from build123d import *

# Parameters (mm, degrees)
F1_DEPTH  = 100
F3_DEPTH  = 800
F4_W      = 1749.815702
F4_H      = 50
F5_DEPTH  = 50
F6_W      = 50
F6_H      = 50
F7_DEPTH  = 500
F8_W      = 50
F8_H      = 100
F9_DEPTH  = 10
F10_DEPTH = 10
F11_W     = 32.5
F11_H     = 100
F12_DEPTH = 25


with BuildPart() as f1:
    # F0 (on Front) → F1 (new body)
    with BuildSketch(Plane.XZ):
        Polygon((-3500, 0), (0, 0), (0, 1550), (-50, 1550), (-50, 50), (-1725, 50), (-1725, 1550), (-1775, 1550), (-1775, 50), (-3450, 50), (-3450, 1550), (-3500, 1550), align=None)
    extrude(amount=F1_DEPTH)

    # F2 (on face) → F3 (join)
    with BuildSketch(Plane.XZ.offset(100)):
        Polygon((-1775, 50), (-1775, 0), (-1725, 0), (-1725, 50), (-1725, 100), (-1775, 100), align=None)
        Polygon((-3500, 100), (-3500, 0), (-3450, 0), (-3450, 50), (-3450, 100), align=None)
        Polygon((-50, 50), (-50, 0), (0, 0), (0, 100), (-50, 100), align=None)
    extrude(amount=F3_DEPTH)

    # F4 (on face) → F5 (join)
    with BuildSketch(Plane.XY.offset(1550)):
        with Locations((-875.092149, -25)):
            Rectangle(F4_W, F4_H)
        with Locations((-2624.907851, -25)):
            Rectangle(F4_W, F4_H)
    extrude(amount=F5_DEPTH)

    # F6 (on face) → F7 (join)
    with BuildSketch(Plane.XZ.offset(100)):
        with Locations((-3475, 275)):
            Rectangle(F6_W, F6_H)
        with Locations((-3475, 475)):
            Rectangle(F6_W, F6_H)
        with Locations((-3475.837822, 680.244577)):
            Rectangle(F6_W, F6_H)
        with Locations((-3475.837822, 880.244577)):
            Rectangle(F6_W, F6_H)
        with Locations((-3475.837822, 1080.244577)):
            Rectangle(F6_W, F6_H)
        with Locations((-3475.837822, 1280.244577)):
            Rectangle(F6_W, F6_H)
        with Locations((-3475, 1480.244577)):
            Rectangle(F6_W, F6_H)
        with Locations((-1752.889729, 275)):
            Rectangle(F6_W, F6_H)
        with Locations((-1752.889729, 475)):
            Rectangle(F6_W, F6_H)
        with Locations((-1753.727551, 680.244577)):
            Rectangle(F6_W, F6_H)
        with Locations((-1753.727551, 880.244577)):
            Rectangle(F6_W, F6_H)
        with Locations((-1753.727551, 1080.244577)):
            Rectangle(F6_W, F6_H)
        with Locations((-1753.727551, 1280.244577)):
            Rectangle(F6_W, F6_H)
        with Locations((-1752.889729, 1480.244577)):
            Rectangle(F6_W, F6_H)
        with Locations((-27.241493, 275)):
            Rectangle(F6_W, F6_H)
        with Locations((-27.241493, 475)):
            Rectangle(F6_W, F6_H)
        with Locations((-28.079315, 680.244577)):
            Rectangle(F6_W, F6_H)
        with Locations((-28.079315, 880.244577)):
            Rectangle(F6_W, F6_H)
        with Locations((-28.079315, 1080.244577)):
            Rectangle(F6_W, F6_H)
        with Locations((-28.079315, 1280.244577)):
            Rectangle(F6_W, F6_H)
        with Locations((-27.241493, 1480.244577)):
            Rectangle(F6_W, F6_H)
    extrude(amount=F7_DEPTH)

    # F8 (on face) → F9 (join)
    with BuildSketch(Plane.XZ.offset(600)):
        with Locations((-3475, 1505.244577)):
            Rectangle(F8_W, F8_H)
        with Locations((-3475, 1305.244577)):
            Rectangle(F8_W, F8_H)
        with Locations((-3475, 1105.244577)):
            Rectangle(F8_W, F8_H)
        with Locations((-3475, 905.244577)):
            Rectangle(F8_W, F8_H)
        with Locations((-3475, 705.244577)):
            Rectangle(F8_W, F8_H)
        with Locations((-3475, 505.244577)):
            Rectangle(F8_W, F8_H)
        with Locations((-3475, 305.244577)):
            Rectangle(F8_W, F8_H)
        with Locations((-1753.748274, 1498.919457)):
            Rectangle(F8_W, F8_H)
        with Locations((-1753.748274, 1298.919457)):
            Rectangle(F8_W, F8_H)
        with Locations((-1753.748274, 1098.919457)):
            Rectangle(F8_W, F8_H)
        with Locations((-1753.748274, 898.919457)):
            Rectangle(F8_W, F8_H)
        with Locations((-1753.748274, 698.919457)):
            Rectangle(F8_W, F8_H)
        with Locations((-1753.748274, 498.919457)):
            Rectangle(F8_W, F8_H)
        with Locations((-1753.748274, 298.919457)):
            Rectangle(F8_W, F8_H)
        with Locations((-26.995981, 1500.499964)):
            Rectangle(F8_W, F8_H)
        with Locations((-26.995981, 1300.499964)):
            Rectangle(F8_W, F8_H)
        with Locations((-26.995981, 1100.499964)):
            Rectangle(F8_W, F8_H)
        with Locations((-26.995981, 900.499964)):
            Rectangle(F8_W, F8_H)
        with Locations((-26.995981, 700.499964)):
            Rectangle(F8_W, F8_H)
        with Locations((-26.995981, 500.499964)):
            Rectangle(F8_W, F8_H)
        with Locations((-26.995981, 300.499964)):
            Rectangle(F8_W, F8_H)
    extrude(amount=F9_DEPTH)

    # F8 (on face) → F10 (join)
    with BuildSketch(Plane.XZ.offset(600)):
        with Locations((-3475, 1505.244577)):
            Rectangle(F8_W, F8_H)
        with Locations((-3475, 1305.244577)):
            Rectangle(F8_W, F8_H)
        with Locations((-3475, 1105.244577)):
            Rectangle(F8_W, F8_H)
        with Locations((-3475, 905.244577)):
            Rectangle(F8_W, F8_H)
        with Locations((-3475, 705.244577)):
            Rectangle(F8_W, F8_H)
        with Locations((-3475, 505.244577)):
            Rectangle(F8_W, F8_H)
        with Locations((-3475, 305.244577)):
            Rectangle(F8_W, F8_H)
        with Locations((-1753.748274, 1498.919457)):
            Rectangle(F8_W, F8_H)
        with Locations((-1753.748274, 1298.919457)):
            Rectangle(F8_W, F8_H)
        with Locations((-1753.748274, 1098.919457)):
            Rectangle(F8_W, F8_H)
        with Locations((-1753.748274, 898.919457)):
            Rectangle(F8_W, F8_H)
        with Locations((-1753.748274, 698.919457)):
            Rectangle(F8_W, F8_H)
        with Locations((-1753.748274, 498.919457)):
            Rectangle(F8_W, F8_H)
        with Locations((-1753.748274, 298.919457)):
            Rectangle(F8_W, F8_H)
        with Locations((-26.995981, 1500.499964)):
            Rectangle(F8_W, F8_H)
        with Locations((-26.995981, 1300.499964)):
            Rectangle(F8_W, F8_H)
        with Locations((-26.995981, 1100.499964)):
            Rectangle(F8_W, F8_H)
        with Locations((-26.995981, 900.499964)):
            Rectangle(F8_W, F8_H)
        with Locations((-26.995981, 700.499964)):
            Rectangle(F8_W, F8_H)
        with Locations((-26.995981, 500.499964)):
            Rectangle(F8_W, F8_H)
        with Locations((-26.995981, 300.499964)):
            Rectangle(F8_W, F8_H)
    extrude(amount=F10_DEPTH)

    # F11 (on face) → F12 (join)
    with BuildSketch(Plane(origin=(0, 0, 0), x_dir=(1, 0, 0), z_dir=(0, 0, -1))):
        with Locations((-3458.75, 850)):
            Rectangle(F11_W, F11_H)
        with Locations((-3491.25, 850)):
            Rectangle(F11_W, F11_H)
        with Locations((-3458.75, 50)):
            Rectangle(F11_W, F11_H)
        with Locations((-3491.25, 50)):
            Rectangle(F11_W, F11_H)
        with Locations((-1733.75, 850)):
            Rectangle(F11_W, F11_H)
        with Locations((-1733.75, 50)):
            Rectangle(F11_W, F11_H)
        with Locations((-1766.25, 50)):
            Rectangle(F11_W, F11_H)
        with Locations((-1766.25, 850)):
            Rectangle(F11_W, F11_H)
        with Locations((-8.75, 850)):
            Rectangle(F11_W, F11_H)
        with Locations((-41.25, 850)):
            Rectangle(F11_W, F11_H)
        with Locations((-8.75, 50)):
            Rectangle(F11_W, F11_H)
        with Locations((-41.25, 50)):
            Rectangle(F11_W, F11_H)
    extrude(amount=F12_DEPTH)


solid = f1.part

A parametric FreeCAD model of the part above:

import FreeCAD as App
import Part
import Sketcher

V = App.Vector


def add_polygon(sketch, points):
    """Adds a closed chain of lines whose ends are joined by coincident constraints."""
    first, n = sketch.GeometryCount, len(points)
    for a, b in zip(points, points[1:] + points[:1]):
        sketch.addGeometry(Part.LineSegment(App.Vector(*a, 0), App.Vector(*b, 0)), False)
    for i in range(n):
        sketch.addConstraint(Sketcher.Constraint("Coincident", first + i, 2, first + (i + 1) % n, 1))

doc = App.newDocument("Part")
body = doc.addObject("PartDesign::Body", "Body")

sketch1 = doc.addObject("Sketcher::SketchObject", "Sketch")
body.addObject(sketch1)
sketch1.AttachmentSupport = (doc.XZ_Plane, [""])
sketch1.MapMode = "FlatFace"
add_polygon(sketch1, [(-3500, 0), (0, 0), (0, 1550), (-50, 1550), (-50, 50), (-1725, 50), (-1725, 1550), (-1775, 1550), (-1775, 50), (-3450, 50), (-3450, 1550), (-3500, 1550)])
sketch1.addConstraint(Sketcher.Constraint("Horizontal", 0))
sketch1.addConstraint(Sketcher.Constraint("Vertical", 1))
sketch1.addConstraint(Sketcher.Constraint("Horizontal", 2))
sketch1.addConstraint(Sketcher.Constraint("Vertical", 3))
sketch1.addConstraint(Sketcher.Constraint("Horizontal", 4))
sketch1.addConstraint(Sketcher.Constraint("Vertical", 5))
sketch1.addConstraint(Sketcher.Constraint("Horizontal", 6))
sketch1.addConstraint(Sketcher.Constraint("Vertical", 7))
sketch1.addConstraint(Sketcher.Constraint("Horizontal", 8))
sketch1.addConstraint(Sketcher.Constraint("Vertical", 9))
sketch1.addConstraint(Sketcher.Constraint("Horizontal", 10))
sketch1.addConstraint(Sketcher.Constraint("Vertical", 11))
sketch1.addConstraint(Sketcher.Constraint("Coincident", 0, 2, -1, 1))
sketch1.addConstraint(Sketcher.Constraint("Horizontal", 2, 2, 5, 2))
sketch1.addConstraint(Sketcher.Constraint("Horizontal", 4, 2, 7, 2))
sketch1.addConstraint(Sketcher.Constraint("Horizontal", 6, 2, 9, 2))
sketch1.addConstraint(Sketcher.Constraint("Equal", 2, 6))
sketch1.addConstraint(Sketcher.Constraint("Equal", 4, 8))
sketch1.addConstraint(Sketcher.Constraint("Equal", 6, 10))
sketch1.addConstraint(Sketcher.Constraint("DistanceX", 0, 1, 0, 2, 3500.0))
sketch1.addConstraint(Sketcher.Constraint("DistanceX", 2, 2, 2, 1, 50.0))
sketch1.addConstraint(Sketcher.Constraint("DistanceY", 1, 1, 1, 2, 1550.0))
sketch1.addConstraint(Sketcher.Constraint("DistanceY", 3, 2, 3, 1, 1500.0))
pad1 = doc.addObject("PartDesign::Pad", "Pad")
body.addObject(pad1)
pad1.Profile = sketch1
pad1.Length = 100

sketch2 = doc.addObject("Sketcher::SketchObject", "Sketch001")
body.addObject(sketch2)
sketch2.AttachmentSupport = (doc.XZ_Plane, [""])
sketch2.MapMode = "FlatFace"
sketch2.AttachmentOffset = App.Placement(V(0, 0, 100), App.Rotation())
add_polygon(sketch2, [(-1775, 0), (-1725, 0), (-1725, 100), (-1775, 100)])
add_polygon(sketch2, [(-3500, 100), (-3500, 0), (-3450, 0), (-3450, 100)])
add_polygon(sketch2, [(-50, 0), (0, 0), (0, 100), (-50, 100)])
sketch2.addConstraint(Sketcher.Constraint("Horizontal", 0))
sketch2.addConstraint(Sketcher.Constraint("Vertical", 1))
sketch2.addConstraint(Sketcher.Constraint("Horizontal", 2))
sketch2.addConstraint(Sketcher.Constraint("Vertical", 3))
sketch2.addConstraint(Sketcher.Constraint("Vertical", 4))
sketch2.addConstraint(Sketcher.Constraint("Horizontal", 5))
sketch2.addConstraint(Sketcher.Constraint("Vertical", 6))
sketch2.addConstraint(Sketcher.Constraint("Horizontal", 7))
sketch2.addConstraint(Sketcher.Constraint("Horizontal", 8))
sketch2.addConstraint(Sketcher.Constraint("Vertical", 9))
sketch2.addConstraint(Sketcher.Constraint("Horizontal", 10))
sketch2.addConstraint(Sketcher.Constraint("Vertical", 11))
sketch2.addConstraint(Sketcher.Constraint("Coincident", 8, 2, -1, 1))
sketch2.addConstraint(Sketcher.Constraint("PointOnObject", 0, 2, -1))
sketch2.addConstraint(Sketcher.Constraint("PointOnObject", 4, 2, -1))
sketch2.addConstraint(Sketcher.Constraint("Horizontal", 2, 2, 6, 2))
sketch2.addConstraint(Sketcher.Constraint("Horizontal", 7, 2, 9, 2))
sketch2.addConstraint(Sketcher.Constraint("Equal", 2, 5))
sketch2.addConstraint(Sketcher.Constraint("Equal", 7, 8))
sketch2.addConstraint(Sketcher.Constraint("DistanceX", 0, 1, 0, 2, 50.0))
sketch2.addConstraint(Sketcher.Constraint("DistanceY", 1, 1, 1, 2, 100.0))
sketch2.addConstraint(Sketcher.Constraint("DistanceX", 0, 2, -1, 1, 1725.0))
sketch2.addConstraint(Sketcher.Constraint("DistanceX", 4, 2, -1, 1, 3500.0))
pad2 = doc.addObject("PartDesign::Pad", "Pad001")
body.addObject(pad2)
pad2.Profile = sketch2
pad2.Length = 800

sketch3 = doc.addObject("Sketcher::SketchObject", "Sketch002")
body.addObject(sketch3)
sketch3.AttachmentSupport = (doc.XY_Plane, [""])
sketch3.MapMode = "FlatFace"
sketch3.AttachmentOffset = App.Placement(V(0, 0, 1550), App.Rotation())
add_polygon(sketch3, [(0, -50), (0, 0), (-3500, 0), (-3500, -50)])
sketch3.addConstraint(Sketcher.Constraint("Vertical", 0))
sketch3.addConstraint(Sketcher.Constraint("Horizontal", 1))
sketch3.addConstraint(Sketcher.Constraint("Vertical", 2))
sketch3.addConstraint(Sketcher.Constraint("Horizontal", 3))
sketch3.addConstraint(Sketcher.Constraint("PointOnObject", 0, 2, -1))
sketch3.addConstraint(Sketcher.Constraint("DistanceY", 0, 1, 0, 2, 50.0))
sketch3.addConstraint(Sketcher.Constraint("DistanceX", 1, 2, -1, 1, 3499.815702))
sketch3.addConstraint(Sketcher.Constraint("DistanceX", 1, 2, 1, 1, 3499.631404))
pad3 = doc.addObject("PartDesign::Pad", "Pad002")
body.addObject(pad3)
pad3.Profile = sketch3
pad3.Length = 50

sketch4 = doc.addObject("Sketcher::SketchObject", "Sketch003")
body.addObject(sketch4)
sketch4.AttachmentSupport = (doc.XZ_Plane, [""])
sketch4.MapMode = "FlatFace"
sketch4.AttachmentOffset = App.Placement(V(0, 0, 100), App.Rotation())
add_polygon(sketch4, [(-3500, 300), (-3500, 250), (-3450, 250), (-3450, 300)])
add_polygon(sketch4, [(-3500, 500), (-3500, 450), (-3450, 450), (-3450, 500)])
add_polygon(sketch4, [(-3501, 705), (-3501, 655), (-3451, 655), (-3451, 705)])
add_polygon(sketch4, [(-3501, 905), (-3501, 855), (-3451, 855), (-3451, 905)])
add_polygon(sketch4, [(-3501, 1105), (-3501, 1055), (-3451, 1055), (-3451, 1105)])
add_polygon(sketch4, [(-3501, 1305), (-3501, 1255), (-3451, 1255), (-3451, 1305)])
add_polygon(sketch4, [(-3500, 1505), (-3500, 1455), (-3450, 1455), (-3450, 1505)])
add_polygon(sketch4, [(-1778, 300), (-1778, 250), (-1728, 250), (-1728, 300)])
add_polygon(sketch4, [(-1778, 500), (-1778, 450), (-1728, 450), (-1728, 500)])
add_polygon(sketch4, [(-1779, 705), (-1779, 655), (-1729, 655), (-1729, 705)])
add_polygon(sketch4, [(-1779, 905), (-1779, 855), (-1729, 855), (-1729, 905)])
add_polygon(sketch4, [(-1779, 1105), (-1779, 1055), (-1729, 1055), (-1729, 1105)])
add_polygon(sketch4, [(-1779, 1305), (-1779, 1255), (-1729, 1255), (-1729, 1305)])
add_polygon(sketch4, [(-1778, 1505), (-1778, 1455), (-1728, 1455), (-1728, 1505)])
add_polygon(sketch4, [(-52, 300), (-52, 250), (-2, 250), (-2, 300)])
add_polygon(sketch4, [(-52, 500), (-52, 450), (-2, 450), (-2, 500)])
add_polygon(sketch4, [(-53, 705), (-53, 655), (-3, 655), (-3, 705)])
add_polygon(sketch4, [(-53, 905), (-53, 855), (-3, 855), (-3, 905)])
add_polygon(sketch4, [(-53, 1105), (-53, 1055), (-3, 1055), (-3, 1105)])
add_polygon(sketch4, [(-53, 1305), (-53, 1255), (-3, 1255), (-3, 1305)])
add_polygon(sketch4, [(-52, 1505), (-52, 1455), (-2, 1455), (-2, 1505)])
sketch4.addConstraint(Sketcher.Constraint("Vertical", 0))
sketch4.addConstraint(Sketcher.Constraint("Horizontal", 1))
sketch4.addConstraint(Sketcher.Constraint("Vertical", 2))
sketch4.addConstraint(Sketcher.Constraint("Horizontal", 3))
sketch4.addConstraint(Sketcher.Constraint("Vertical", 4))
sketch4.addConstraint(Sketcher.Constraint("Horizontal", 5))
sketch4.addConstraint(Sketcher.Constraint("Vertical", 6))
sketch4.addConstraint(Sketcher.Constraint("Horizontal", 7))
sketch4.addConstraint(Sketcher.Constraint("Vertical", 8))
sketch4.addConstraint(Sketcher.Constraint("Horizontal", 9))
sketch4.addConstraint(Sketcher.Constraint("Vertical", 10))
sketch4.addConstraint(Sketcher.Constraint("Horizontal", 11))
sketch4.addConstraint(Sketcher.Constraint("Vertical", 12))
sketch4.addConstraint(Sketcher.Constraint("Horizontal", 13))
sketch4.addConstraint(Sketcher.Constraint("Vertical", 14))
sketch4.addConstraint(Sketcher.Constraint("Horizontal", 15))
sketch4.addConstraint(Sketcher.Constraint("Vertical", 16))
sketch4.addConstraint(Sketcher.Constraint("Horizontal", 17))
sketch4.addConstraint(Sketcher.Constraint("Vertical", 18))
sketch4.addConstraint(Sketcher.Constraint("Horizontal", 19))
sketch4.addConstraint(Sketcher.Constraint("Vertical", 20))
sketch4.addConstraint(Sketcher.Constraint("Horizontal", 21))
sketch4.addConstraint(Sketcher.Constraint("Vertical", 22))
sketch4.addConstraint(Sketcher.Constraint("Horizontal", 23))
sketch4.addConstraint(Sketcher.Constraint("Vertical", 24))
sketch4.addConstraint(Sketcher.Constraint("Horizontal", 25))
sketch4.addConstraint(Sketcher.Constraint("Vertical", 26))
sketch4.addConstraint(Sketcher.Constraint("Horizontal", 27))
sketch4.addConstraint(Sketcher.Constraint("Vertical", 28))
sketch4.addConstraint(Sketcher.Constraint("Horizontal", 29))
sketch4.addConstraint(Sketcher.Constraint("Vertical", 30))
sketch4.addConstraint(Sketcher.Constraint("Horizontal", 31))
sketch4.addConstraint(Sketcher.Constraint("Vertical", 32))
sketch4.addConstraint(Sketcher.Constraint("Horizontal", 33))
sketch4.addConstraint(Sketcher.Constraint("Vertical", 34))
sketch4.addConstraint(Sketcher.Constraint("Horizontal", 35))
sketch4.addConstraint(Sketcher.Constraint("Vertical", 36))
sketch4.addConstraint(Sketcher.Constraint("Horizontal", 37))
sketch4.addConstraint(Sketcher.Constraint("Vertical", 38))
sketch4.addConstraint(Sketcher.Constraint("Horizontal", 39))
sketch4.addConstraint(Sketcher.Constraint("Vertical", 40))
sketch4.addConstraint(Sketcher.Constraint("Horizontal", 41))
sketch4.addConstraint(Sketcher.Constraint("Vertical", 42))
sketch4.addConstraint(Sketcher.Constraint("Horizontal", 43))
sketch4.addConstraint(Sketcher.Constraint("Vertical", 44))
sketch4.addConstraint(Sketcher.Constraint("Horizontal", 45))
sketch4.addConstraint(Sketcher.Constraint("Vertical", 46))
sketch4.addConstraint(Sketcher.Constraint("Horizontal", 47))
sketch4.addConstraint(Sketcher.Constraint("Vertical", 48))
sketch4.addConstraint(Sketcher.Constraint("Horizontal", 49))
sketch4.addConstraint(Sketcher.Constraint("Vertical", 50))
sketch4.addConstraint(Sketcher.Constraint("Horizontal", 51))
sketch4.addConstraint(Sketcher.Constraint("Vertical", 52))
sketch4.addConstraint(Sketcher.Constraint("Horizontal", 53))
sketch4.addConstraint(Sketcher.Constraint("Vertical", 54))
sketch4.addConstraint(Sketcher.Constraint("Horizontal", 55))
sketch4.addConstraint(Sketcher.Constraint("Vertical", 56))
sketch4.addConstraint(Sketcher.Constraint("Horizontal", 57))
sketch4.addConstraint(Sketcher.Constraint("Vertical", 58))
sketch4.addConstraint(Sketcher.Constraint("Horizontal", 59))
sketch4.addConstraint(Sketcher.Constraint("Vertical", 60))
sketch4.addConstraint(Sketcher.Constraint("Horizontal", 61))
sketch4.addConstraint(Sketcher.Constraint("Vertical", 62))
sketch4.addConstraint(Sketcher.Constraint("Horizontal", 63))
sketch4.addConstraint(Sketcher.Constraint("Vertical", 64))
sketch4.addConstraint(Sketcher.Constraint("Horizontal", 65))
sketch4.addConstraint(Sketcher.Constraint("Vertical", 66))
sketch4.addConstraint(Sketcher.Constraint("Horizontal", 67))
sketch4.addConstraint(Sketcher.Constraint("Vertical", 68))
sketch4.addConstraint(Sketcher.Constraint("Horizontal", 69))
sketch4.addConstraint(Sketcher.Constraint("Vertical", 70))
sketch4.addConstraint(Sketcher.Constraint("Horizontal", 71))
sketch4.addConstraint(Sketcher.Constraint("Vertical", 72))
sketch4.addConstraint(Sketcher.Constraint("Horizontal", 73))
sketch4.addConstraint(Sketcher.Constraint("Vertical", 74))
sketch4.addConstraint(Sketcher.Constraint("Horizontal", 75))
sketch4.addConstraint(Sketcher.Constraint("Vertical", 76))
sketch4.addConstraint(Sketcher.Constraint("Horizontal", 77))
sketch4.addConstraint(Sketcher.Constraint("Vertical", 78))
sketch4.addConstraint(Sketcher.Constraint("Horizontal", 79))
sketch4.addConstraint(Sketcher.Constraint("Vertical", 80))
sketch4.addConstraint(Sketcher.Constraint("Horizontal", 81))
sketch4.addConstraint(Sketcher.Constraint("Vertical", 82))
sketch4.addConstraint(Sketcher.Constraint("Horizontal", 83))
sketch4.addConstraint(Sketcher.Constraint("Horizontal", 1, 2, 28, 2))
sketch4.addConstraint(Sketcher.Constraint("Horizontal", 3, 2, 30, 2))
sketch4.addConstraint(Sketcher.Constraint("Horizontal", 5, 2, 32, 2))
sketch4.addConstraint(Sketcher.Constraint("Horizontal", 7, 2, 34, 2))
sketch4.addConstraint(Sketcher.Constraint("Horizontal", 9, 2, 36, 2))
sketch4.addConstraint(Sketcher.Constraint("Horizontal", 11, 2, 38, 2))
sketch4.addConstraint(Sketcher.Constraint("Horizontal", 13, 2, 40, 2))
sketch4.addConstraint(Sketcher.Constraint("Horizontal", 15, 2, 42, 2))
sketch4.addConstraint(Sketcher.Constraint("Horizontal", 17, 2, 44, 2))
sketch4.addConstraint(Sketcher.Constraint("Horizontal", 19, 2, 46, 2))
sketch4.addConstraint(Sketcher.Constraint("Horizontal", 21, 2, 48, 2))
sketch4.addConstraint(Sketcher.Constraint("Horizontal", 23, 2, 50, 2))
sketch4.addConstraint(Sketcher.Constraint("Horizontal", 25, 2, 52, 2))
sketch4.addConstraint(Sketcher.Constraint("Horizontal", 27, 2, 54, 2))
sketch4.addConstraint(Sketcher.Constraint("Horizontal", 29, 2, 56, 2))
sketch4.addConstraint(Sketcher.Constraint("Horizontal", 31, 2, 58, 2))
sketch4.addConstraint(Sketcher.Constraint("Horizontal", 33, 2, 60, 2))
sketch4.addConstraint(Sketcher.Constraint("Horizontal", 35, 2, 62, 2))
sketch4.addConstraint(Sketcher.Constraint("Horizontal", 37, 2, 64, 2))
sketch4.addConstraint(Sketcher.Constraint("Horizontal", 39, 2, 66, 2))
sketch4.addConstraint(Sketcher.Constraint("Horizontal", 41, 2, 68, 2))
sketch4.addConstraint(Sketcher.Constraint("Horizontal", 43, 2, 70, 2))
sketch4.addConstraint(Sketcher.Constraint("Horizontal", 45, 2, 72, 2))
sketch4.addConstraint(Sketcher.Constraint("Horizontal", 47, 2, 74, 2))
sketch4.addConstraint(Sketcher.Constraint("Horizontal", 49, 2, 76, 2))
sketch4.addConstraint(Sketcher.Constraint("Horizontal", 51, 2, 78, 2))
sketch4.addConstraint(Sketcher.Constraint("Horizontal", 53, 2, 80, 2))
sketch4.addConstraint(Sketcher.Constraint("Horizontal", 55, 2, 82, 2))
sketch4.addConstraint(Sketcher.Constraint("Vertical", 3, 2, 4, 2))
sketch4.addConstraint(Sketcher.Constraint("Vertical", 2, 2, 5, 2))
sketch4.addConstraint(Sketcher.Constraint("Vertical", 11, 2, 12, 2))
sketch4.addConstraint(Sketcher.Constraint("Vertical", 10, 2, 13, 2))
sketch4.addConstraint(Sketcher.Constraint("Vertical", 15, 2, 16, 2))
sketch4.addConstraint(Sketcher.Constraint("Vertical", 14, 2, 17, 2))
sketch4.addConstraint(Sketcher.Constraint("Vertical", 19, 2, 20, 2))
sketch4.addConstraint(Sketcher.Constraint("Vertical", 18, 2, 21, 2))
sketch4.addConstraint(Sketcher.Constraint("Vertical", 7, 2, 24, 2))
sketch4.addConstraint(Sketcher.Constraint("Vertical", 6, 2, 25, 2))
sketch4.addConstraint(Sketcher.Constraint("Vertical", 31, 2, 32, 2))
sketch4.addConstraint(Sketcher.Constraint("Vertical", 30, 2, 33, 2))
sketch4.addConstraint(Sketcher.Constraint("Vertical", 39, 2, 40, 2))
sketch4.addConstraint(Sketcher.Constraint("Vertical", 38, 2, 41, 2))
sketch4.addConstraint(Sketcher.Constraint("Vertical", 43, 2, 44, 2))
sketch4.addConstraint(Sketcher.Constraint("Vertical", 42, 2, 45, 2))
sketch4.addConstraint(Sketcher.Constraint("Vertical", 47, 2, 48, 2))
sketch4.addConstraint(Sketcher.Constraint("Vertical", 46, 2, 49, 2))
sketch4.addConstraint(Sketcher.Constraint("Vertical", 35, 2, 52, 2))
sketch4.addConstraint(Sketcher.Constraint("Vertical", 34, 2, 53, 2))
sketch4.addConstraint(Sketcher.Constraint("Vertical", 59, 2, 60, 2))
sketch4.addConstraint(Sketcher.Constraint("Vertical", 58, 2, 61, 2))
sketch4.addConstraint(Sketcher.Constraint("Vertical", 67, 2, 68, 2))
sketch4.addConstraint(Sketcher.Constraint("Vertical", 66, 2, 69, 2))
sketch4.addConstraint(Sketcher.Constraint("Vertical", 71, 2, 72, 2))
sketch4.addConstraint(Sketcher.Constraint("Vertical", 70, 2, 73, 2))
sketch4.addConstraint(Sketcher.Constraint("Vertical", 75, 2, 76, 2))
sketch4.addConstraint(Sketcher.Constraint("Vertical", 74, 2, 77, 2))
sketch4.addConstraint(Sketcher.Constraint("Vertical", 63, 2, 80, 2))
sketch4.addConstraint(Sketcher.Constraint("Vertical", 62, 2, 81, 2))
sketch4.addConstraint(Sketcher.Constraint("Equal", 7, 9))
sketch4.addConstraint(Sketcher.Constraint("Equal", 27, 29))
sketch4.addConstraint(Sketcher.Constraint("Equal", 35, 37))
sketch4.addConstraint(Sketcher.Constraint("Equal", 55, 57))
sketch4.addConstraint(Sketcher.Constraint("Equal", 63, 65))
sketch4.addConstraint(Sketcher.Constraint("Equal", 83, 0))
sketch4.addConstraint(Sketcher.Constraint("Equal", 2, 4))
sketch4.addConstraint(Sketcher.Constraint("Equal", 6, 8))
sketch4.addConstraint(Sketcher.Constraint("Equal", 10, 12))
sketch4.addConstraint(Sketcher.Constraint("Equal", 14, 16))
sketch4.addConstraint(Sketcher.Constraint("Equal", 18, 20))
sketch4.addConstraint(Sketcher.Constraint("Equal", 22, 24))
sketch4.addConstraint(Sketcher.Constraint("DistanceX", 1, 1, 1, 2, 50.0))
sketch4.addConstraint(Sketcher.Constraint("DistanceX", 0, 2, -1, 1, 3500.0))
sketch4.addConstraint(Sketcher.Constraint("DistanceY", -1, 1, 0, 2, 250.0))
sketch4.addConstraint(Sketcher.Constraint("DistanceY", -1, 1, 4, 2, 450.0))
sketch4.addConstraint(Sketcher.Constraint("DistanceX", 8, 2, -1, 1, 3500.837822))
sketch4.addConstraint(Sketcher.Constraint("DistanceX", 28, 2, -1, 1, 1777.889729))
sketch4.addConstraint(Sketcher.Constraint("DistanceX", 36, 2, -1, 1, 1778.727551))
sketch4.addConstraint(Sketcher.Constraint("DistanceY", -1, 1, 8, 2, 655.244577))
sketch4.addConstraint(Sketcher.Constraint("DistanceY", -1, 1, 12, 2, 855.244577))
sketch4.addConstraint(Sketcher.Constraint("DistanceY", -1, 1, 16, 2, 1055.244577))
sketch4.addConstraint(Sketcher.Constraint("DistanceY", -1, 1, 20, 2, 1255.244577))
sketch4.addConstraint(Sketcher.Constraint("DistanceY", -1, 1, 24, 2, 1455.244577))
sketch4.addConstraint(Sketcher.Constraint("DistanceX", 56, 2, -1, 1, 52.241493))
sketch4.addConstraint(Sketcher.Constraint("DistanceX", 64, 2, -1, 1, 53.079315))
pad4 = doc.addObject("PartDesign::Pad", "Pad003")
body.addObject(pad4)
pad4.Profile = sketch4
pad4.Length = 500

sketch5 = doc.addObject("Sketcher::SketchObject", "Sketch004")
body.addObject(sketch5)
sketch5.AttachmentSupport = (doc.XZ_Plane, [""])
sketch5.MapMode = "FlatFace"
sketch5.AttachmentOffset = App.Placement(V(0, 0, 600), App.Rotation())
add_polygon(sketch5, [(-3500, 1555), (-3500, 1455), (-3450, 1455), (-3450, 1555)])
add_polygon(sketch5, [(-3500, 1355), (-3500, 1255), (-3450, 1255), (-3450, 1355)])
add_polygon(sketch5, [(-3500, 1155), (-3500, 1055), (-3450, 1055), (-3450, 1155)])
add_polygon(sketch5, [(-3500, 955), (-3500, 855), (-3450, 855), (-3450, 955)])
add_polygon(sketch5, [(-3500, 755), (-3500, 655), (-3450, 655), (-3450, 755)])
add_polygon(sketch5, [(-3500, 555), (-3500, 455), (-3450, 455), (-3450, 555)])
add_polygon(sketch5, [(-3500, 355), (-3500, 255), (-3450, 255), (-3450, 355)])
add_polygon(sketch5, [(-1779, 1549), (-1779, 1449), (-1729, 1449), (-1729, 1549)])
add_polygon(sketch5, [(-1779, 1349), (-1779, 1249), (-1729, 1249), (-1729, 1349)])
add_polygon(sketch5, [(-1779, 1149), (-1779, 1049), (-1729, 1049), (-1729, 1149)])
add_polygon(sketch5, [(-1779, 949), (-1779, 849), (-1729, 849), (-1729, 949)])
add_polygon(sketch5, [(-1779, 749), (-1779, 649), (-1729, 649), (-1729, 749)])
add_polygon(sketch5, [(-1779, 549), (-1779, 449), (-1729, 449), (-1729, 549)])
add_polygon(sketch5, [(-1779, 349), (-1779, 249), (-1729, 249), (-1729, 349)])
add_polygon(sketch5, [(-52, 1550), (-52, 1450), (-2, 1450), (-2, 1550)])
add_polygon(sketch5, [(-52, 1350), (-52, 1250), (-2, 1250), (-2, 1350)])
add_polygon(sketch5, [(-52, 1150), (-52, 1050), (-2, 1050), (-2, 1150)])
add_polygon(sketch5, [(-52, 950), (-52, 850), (-2, 850), (-2, 950)])
add_polygon(sketch5, [(-52, 750), (-52, 650), (-2, 650), (-2, 750)])
add_polygon(sketch5, [(-52, 550), (-52, 450), (-2, 450), (-2, 550)])
add_polygon(sketch5, [(-52, 350), (-52, 250), (-2, 250), (-2, 350)])
sketch5.addConstraint(Sketcher.Constraint("Vertical", 0))
sketch5.addConstraint(Sketcher.Constraint("Horizontal", 1))
sketch5.addConstraint(Sketcher.Constraint("Vertical", 2))
sketch5.addConstraint(Sketcher.Constraint("Horizontal", 3))
sketch5.addConstraint(Sketcher.Constraint("Vertical", 4))
sketch5.addConstraint(Sketcher.Constraint("Horizontal", 5))
sketch5.addConstraint(Sketcher.Constraint("Vertical", 6))
sketch5.addConstraint(Sketcher.Constraint("Horizontal", 7))
sketch5.addConstraint(Sketcher.Constraint("Vertical", 8))
sketch5.addConstraint(Sketcher.Constraint("Horizontal", 9))
sketch5.addConstraint(Sketcher.Constraint("Vertical", 10))
sketch5.addConstraint(Sketcher.Constraint("Horizontal", 11))
sketch5.addConstraint(Sketcher.Constraint("Vertical", 12))
sketch5.addConstraint(Sketcher.Constraint("Horizontal", 13))
sketch5.addConstraint(Sketcher.Constraint("Vertical", 14))
sketch5.addConstraint(Sketcher.Constraint("Horizontal", 15))
sketch5.addConstraint(Sketcher.Constraint("Vertical", 16))
sketch5.addConstraint(Sketcher.Constraint("Horizontal", 17))
sketch5.addConstraint(Sketcher.Constraint("Vertical", 18))
sketch5.addConstraint(Sketcher.Constraint("Horizontal", 19))
sketch5.addConstraint(Sketcher.Constraint("Vertical", 20))
sketch5.addConstraint(Sketcher.Constraint("Horizontal", 21))
sketch5.addConstraint(Sketcher.Constraint("Vertical", 22))
sketch5.addConstraint(Sketcher.Constraint("Horizontal", 23))
sketch5.addConstraint(Sketcher.Constraint("Vertical", 24))
sketch5.addConstraint(Sketcher.Constraint("Horizontal", 25))
sketch5.addConstraint(Sketcher.Constraint("Vertical", 26))
sketch5.addConstraint(Sketcher.Constraint("Horizontal", 27))
sketch5.addConstraint(Sketcher.Constraint("Vertical", 28))
sketch5.addConstraint(Sketcher.Constraint("Horizontal", 29))
sketch5.addConstraint(Sketcher.Constraint("Vertical", 30))
sketch5.addConstraint(Sketcher.Constraint("Horizontal", 31))
sketch5.addConstraint(Sketcher.Constraint("Vertical", 32))
sketch5.addConstraint(Sketcher.Constraint("Horizontal", 33))
sketch5.addConstraint(Sketcher.Constraint("Vertical", 34))
sketch5.addConstraint(Sketcher.Constraint("Horizontal", 35))
sketch5.addConstraint(Sketcher.Constraint("Vertical", 36))
sketch5.addConstraint(Sketcher.Constraint("Horizontal", 37))
sketch5.addConstraint(Sketcher.Constraint("Vertical", 38))
sketch5.addConstraint(Sketcher.Constraint("Horizontal", 39))
sketch5.addConstraint(Sketcher.Constraint("Vertical", 40))
sketch5.addConstraint(Sketcher.Constraint("Horizontal", 41))
sketch5.addConstraint(Sketcher.Constraint("Vertical", 42))
sketch5.addConstraint(Sketcher.Constraint("Horizontal", 43))
sketch5.addConstraint(Sketcher.Constraint("Vertical", 44))
sketch5.addConstraint(Sketcher.Constraint("Horizontal", 45))
sketch5.addConstraint(Sketcher.Constraint("Vertical", 46))
sketch5.addConstraint(Sketcher.Constraint("Horizontal", 47))
sketch5.addConstraint(Sketcher.Constraint("Vertical", 48))
sketch5.addConstraint(Sketcher.Constraint("Horizontal", 49))
sketch5.addConstraint(Sketcher.Constraint("Vertical", 50))
sketch5.addConstraint(Sketcher.Constraint("Horizontal", 51))
sketch5.addConstraint(Sketcher.Constraint("Vertical", 52))
sketch5.addConstraint(Sketcher.Constraint("Horizontal", 53))
sketch5.addConstraint(Sketcher.Constraint("Vertical", 54))
sketch5.addConstraint(Sketcher.Constraint("Horizontal", 55))
sketch5.addConstraint(Sketcher.Constraint("Vertical", 56))
sketch5.addConstraint(Sketcher.Constraint("Horizontal", 57))
sketch5.addConstraint(Sketcher.Constraint("Vertical", 58))
sketch5.addConstraint(Sketcher.Constraint("Horizontal", 59))
sketch5.addConstraint(Sketcher.Constraint("Vertical", 60))
sketch5.addConstraint(Sketcher.Constraint("Horizontal", 61))
sketch5.addConstraint(Sketcher.Constraint("Vertical", 62))
sketch5.addConstraint(Sketcher.Constraint("Horizontal", 63))
sketch5.addConstraint(Sketcher.Constraint("Vertical", 64))
sketch5.addConstraint(Sketcher.Constraint("Horizontal", 65))
sketch5.addConstraint(Sketcher.Constraint("Vertical", 66))
sketch5.addConstraint(Sketcher.Constraint("Horizontal", 67))
sketch5.addConstraint(Sketcher.Constraint("Vertical", 68))
sketch5.addConstraint(Sketcher.Constraint("Horizontal", 69))
sketch5.addConstraint(Sketcher.Constraint("Vertical", 70))
sketch5.addConstraint(Sketcher.Constraint("Horizontal", 71))
sketch5.addConstraint(Sketcher.Constraint("Vertical", 72))
sketch5.addConstraint(Sketcher.Constraint("Horizontal", 73))
sketch5.addConstraint(Sketcher.Constraint("Vertical", 74))
sketch5.addConstraint(Sketcher.Constraint("Horizontal", 75))
sketch5.addConstraint(Sketcher.Constraint("Vertical", 76))
sketch5.addConstraint(Sketcher.Constraint("Horizontal", 77))
sketch5.addConstraint(Sketcher.Constraint("Vertical", 78))
sketch5.addConstraint(Sketcher.Constraint("Horizontal", 79))
sketch5.addConstraint(Sketcher.Constraint("Vertical", 80))
sketch5.addConstraint(Sketcher.Constraint("Horizontal", 81))
sketch5.addConstraint(Sketcher.Constraint("Vertical", 82))
sketch5.addConstraint(Sketcher.Constraint("Horizontal", 83))
sketch5.addConstraint(Sketcher.Constraint("Vertical", 3, 2, 4, 2))
sketch5.addConstraint(Sketcher.Constraint("Vertical", 2, 2, 5, 2))
sketch5.addConstraint(Sketcher.Constraint("Vertical", 7, 2, 8, 2))
sketch5.addConstraint(Sketcher.Constraint("Vertical", 6, 2, 9, 2))
sketch5.addConstraint(Sketcher.Constraint("Vertical", 11, 2, 12, 2))
sketch5.addConstraint(Sketcher.Constraint("Vertical", 10, 2, 13, 2))
sketch5.addConstraint(Sketcher.Constraint("Vertical", 15, 2, 16, 2))
sketch5.addConstraint(Sketcher.Constraint("Vertical", 14, 2, 17, 2))
sketch5.addConstraint(Sketcher.Constraint("Vertical", 19, 2, 20, 2))
sketch5.addConstraint(Sketcher.Constraint("Vertical", 18, 2, 21, 2))
sketch5.addConstraint(Sketcher.Constraint("Vertical", 23, 2, 24, 2))
sketch5.addConstraint(Sketcher.Constraint("Vertical", 22, 2, 25, 2))
sketch5.addConstraint(Sketcher.Constraint("Vertical", 31, 2, 32, 2))
sketch5.addConstraint(Sketcher.Constraint("Vertical", 30, 2, 33, 2))
sketch5.addConstraint(Sketcher.Constraint("Vertical", 35, 2, 36, 2))
sketch5.addConstraint(Sketcher.Constraint("Vertical", 34, 2, 37, 2))
sketch5.addConstraint(Sketcher.Constraint("Vertical", 39, 2, 40, 2))
sketch5.addConstraint(Sketcher.Constraint("Vertical", 38, 2, 41, 2))
sketch5.addConstraint(Sketcher.Constraint("Vertical", 43, 2, 44, 2))
sketch5.addConstraint(Sketcher.Constraint("Vertical", 42, 2, 45, 2))
sketch5.addConstraint(Sketcher.Constraint("Vertical", 47, 2, 48, 2))
sketch5.addConstraint(Sketcher.Constraint("Vertical", 46, 2, 49, 2))
sketch5.addConstraint(Sketcher.Constraint("Vertical", 51, 2, 52, 2))
sketch5.addConstraint(Sketcher.Constraint("Vertical", 50, 2, 53, 2))
sketch5.addConstraint(Sketcher.Constraint("Vertical", 59, 2, 60, 2))
sketch5.addConstraint(Sketcher.Constraint("Vertical", 58, 2, 61, 2))
sketch5.addConstraint(Sketcher.Constraint("Vertical", 63, 2, 64, 2))
sketch5.addConstraint(Sketcher.Constraint("Vertical", 62, 2, 65, 2))
sketch5.addConstraint(Sketcher.Constraint("Vertical", 67, 2, 68, 2))
sketch5.addConstraint(Sketcher.Constraint("Vertical", 66, 2, 69, 2))
sketch5.addConstraint(Sketcher.Constraint("Vertical", 71, 2, 72, 2))
sketch5.addConstraint(Sketcher.Constraint("Vertical", 70, 2, 73, 2))
sketch5.addConstraint(Sketcher.Constraint("Vertical", 75, 2, 76, 2))
sketch5.addConstraint(Sketcher.Constraint("Vertical", 74, 2, 77, 2))
sketch5.addConstraint(Sketcher.Constraint("Vertical", 79, 2, 80, 2))
sketch5.addConstraint(Sketcher.Constraint("Vertical", 78, 2, 81, 2))
sketch5.addConstraint(Sketcher.Constraint("Equal", 27, 29))
sketch5.addConstraint(Sketcher.Constraint("Equal", 55, 57))
sketch5.addConstraint(Sketcher.Constraint("Equal", 2, 4))
sketch5.addConstraint(Sketcher.Constraint("Equal", 6, 8))
sketch5.addConstraint(Sketcher.Constraint("Equal", 10, 12))
sketch5.addConstraint(Sketcher.Constraint("Equal", 14, 16))
sketch5.addConstraint(Sketcher.Constraint("Equal", 18, 20))
sketch5.addConstraint(Sketcher.Constraint("Equal", 22, 24))
sketch5.addConstraint(Sketcher.Constraint("Equal", 26, 28))
sketch5.addConstraint(Sketcher.Constraint("Equal", 30, 32))
sketch5.addConstraint(Sketcher.Constraint("Equal", 34, 36))
sketch5.addConstraint(Sketcher.Constraint("Equal", 38, 40))
sketch5.addConstraint(Sketcher.Constraint("Equal", 42, 44))
sketch5.addConstraint(Sketcher.Constraint("Equal", 46, 48))
sketch5.addConstraint(Sketcher.Constraint("Equal", 50, 52))
sketch5.addConstraint(Sketcher.Constraint("Equal", 54, 56))
sketch5.addConstraint(Sketcher.Constraint("Equal", 58, 60))
sketch5.addConstraint(Sketcher.Constraint("Equal", 62, 64))
sketch5.addConstraint(Sketcher.Constraint("Equal", 66, 68))
sketch5.addConstraint(Sketcher.Constraint("Equal", 70, 72))
sketch5.addConstraint(Sketcher.Constraint("Equal", 74, 76))
sketch5.addConstraint(Sketcher.Constraint("Equal", 78, 80))
sketch5.addConstraint(Sketcher.Constraint("DistanceX", 1, 1, 1, 2, 50.0))
sketch5.addConstraint(Sketcher.Constraint("DistanceY", 0, 2, 0, 1, 100.0))
sketch5.addConstraint(Sketcher.Constraint("DistanceX", 0, 2, -1, 1, 3500.0))
sketch5.addConstraint(Sketcher.Constraint("DistanceX", 56, 2, -1, 1, 51.995981))
sketch5.addConstraint(Sketcher.Constraint("DistanceY", -1, 1, 0, 2, 1455.244577))
sketch5.addConstraint(Sketcher.Constraint("DistanceY", -1, 1, 4, 2, 1255.244577))
sketch5.addConstraint(Sketcher.Constraint("DistanceY", -1, 1, 8, 2, 1055.244577))
sketch5.addConstraint(Sketcher.Constraint("DistanceY", -1, 1, 12, 2, 855.244577))
sketch5.addConstraint(Sketcher.Constraint("DistanceY", -1, 1, 16, 2, 655.244577))
sketch5.addConstraint(Sketcher.Constraint("DistanceY", -1, 1, 20, 2, 455.244577))
sketch5.addConstraint(Sketcher.Constraint("DistanceY", -1, 1, 24, 2, 255.244577))
sketch5.addConstraint(Sketcher.Constraint("DistanceX", 28, 2, -1, 1, 1778.748274))
sketch5.addConstraint(Sketcher.Constraint("DistanceY", -1, 1, 28, 2, 1448.919457))
sketch5.addConstraint(Sketcher.Constraint("DistanceY", -1, 1, 32, 2, 1248.919457))
sketch5.addConstraint(Sketcher.Constraint("DistanceY", -1, 1, 36, 2, 1048.919457))
sketch5.addConstraint(Sketcher.Constraint("DistanceY", -1, 1, 40, 2, 848.919457))
sketch5.addConstraint(Sketcher.Constraint("DistanceY", -1, 1, 44, 2, 648.919457))
sketch5.addConstraint(Sketcher.Constraint("DistanceY", -1, 1, 48, 2, 448.919457))
sketch5.addConstraint(Sketcher.Constraint("DistanceY", -1, 1, 52, 2, 248.919457))
sketch5.addConstraint(Sketcher.Constraint("DistanceY", -1, 1, 56, 2, 1450.499964))
sketch5.addConstraint(Sketcher.Constraint("DistanceY", -1, 1, 60, 2, 1250.499964))
sketch5.addConstraint(Sketcher.Constraint("DistanceY", -1, 1, 64, 2, 1050.499964))
sketch5.addConstraint(Sketcher.Constraint("DistanceY", -1, 1, 68, 2, 850.499964))
sketch5.addConstraint(Sketcher.Constraint("DistanceY", -1, 1, 72, 2, 650.499964))
sketch5.addConstraint(Sketcher.Constraint("DistanceY", -1, 1, 76, 2, 450.499964))
sketch5.addConstraint(Sketcher.Constraint("DistanceY", -1, 1, 80, 2, 250.499964))
pad5 = doc.addObject("PartDesign::Pad", "Pad004")
body.addObject(pad5)
pad5.Profile = sketch5
pad5.Length = 10

sketch6 = doc.addObject("Sketcher::SketchObject", "Sketch005")
body.addObject(sketch6)
sketch6.AttachmentSupport = (doc.XZ_Plane, [""])
sketch6.MapMode = "FlatFace"
sketch6.AttachmentOffset = App.Placement(V(0, 0, 600), App.Rotation())
add_polygon(sketch6, [(-3500, 1555), (-3500, 1455), (-3450, 1455), (-3450, 1555)])
add_polygon(sketch6, [(-3500, 1355), (-3500, 1255), (-3450, 1255), (-3450, 1355)])
add_polygon(sketch6, [(-3500, 1155), (-3500, 1055), (-3450, 1055), (-3450, 1155)])
add_polygon(sketch6, [(-3500, 955), (-3500, 855), (-3450, 855), (-3450, 955)])
add_polygon(sketch6, [(-3500, 755), (-3500, 655), (-3450, 655), (-3450, 755)])
add_polygon(sketch6, [(-3500, 555), (-3500, 455), (-3450, 455), (-3450, 555)])
add_polygon(sketch6, [(-3500, 355), (-3500, 255), (-3450, 255), (-3450, 355)])
add_polygon(sketch6, [(-1779, 1549), (-1779, 1449), (-1729, 1449), (-1729, 1549)])
add_polygon(sketch6, [(-1779, 1349), (-1779, 1249), (-1729, 1249), (-1729, 1349)])
add_polygon(sketch6, [(-1779, 1149), (-1779, 1049), (-1729, 1049), (-1729, 1149)])
add_polygon(sketch6, [(-1779, 949), (-1779, 849), (-1729, 849), (-1729, 949)])
add_polygon(sketch6, [(-1779, 749), (-1779, 649), (-1729, 649), (-1729, 749)])
add_polygon(sketch6, [(-1779, 549), (-1779, 449), (-1729, 449), (-1729, 549)])
add_polygon(sketch6, [(-1779, 349), (-1779, 249), (-1729, 249), (-1729, 349)])
add_polygon(sketch6, [(-52, 1550), (-52, 1450), (-2, 1450), (-2, 1550)])
add_polygon(sketch6, [(-52, 1350), (-52, 1250), (-2, 1250), (-2, 1350)])
add_polygon(sketch6, [(-52, 1150), (-52, 1050), (-2, 1050), (-2, 1150)])
add_polygon(sketch6, [(-52, 950), (-52, 850), (-2, 850), (-2, 950)])
add_polygon(sketch6, [(-52, 750), (-52, 650), (-2, 650), (-2, 750)])
add_polygon(sketch6, [(-52, 550), (-52, 450), (-2, 450), (-2, 550)])
add_polygon(sketch6, [(-52, 350), (-52, 250), (-2, 250), (-2, 350)])
sketch6.addConstraint(Sketcher.Constraint("Vertical", 0))
sketch6.addConstraint(Sketcher.Constraint("Horizontal", 1))
sketch6.addConstraint(Sketcher.Constraint("Vertical", 2))
sketch6.addConstraint(Sketcher.Constraint("Horizontal", 3))
sketch6.addConstraint(Sketcher.Constraint("Vertical", 4))
sketch6.addConstraint(Sketcher.Constraint("Horizontal", 5))
sketch6.addConstraint(Sketcher.Constraint("Vertical", 6))
sketch6.addConstraint(Sketcher.Constraint("Horizontal", 7))
sketch6.addConstraint(Sketcher.Constraint("Vertical", 8))
sketch6.addConstraint(Sketcher.Constraint("Horizontal", 9))
sketch6.addConstraint(Sketcher.Constraint("Vertical", 10))
sketch6.addConstraint(Sketcher.Constraint("Horizontal", 11))
sketch6.addConstraint(Sketcher.Constraint("Vertical", 12))
sketch6.addConstraint(Sketcher.Constraint("Horizontal", 13))
sketch6.addConstraint(Sketcher.Constraint("Vertical", 14))
sketch6.addConstraint(Sketcher.Constraint("Horizontal", 15))
sketch6.addConstraint(Sketcher.Constraint("Vertical", 16))
sketch6.addConstraint(Sketcher.Constraint("Horizontal", 17))
sketch6.addConstraint(Sketcher.Constraint("Vertical", 18))
sketch6.addConstraint(Sketcher.Constraint("Horizontal", 19))
sketch6.addConstraint(Sketcher.Constraint("Vertical", 20))
sketch6.addConstraint(Sketcher.Constraint("Horizontal", 21))
sketch6.addConstraint(Sketcher.Constraint("Vertical", 22))
sketch6.addConstraint(Sketcher.Constraint("Horizontal", 23))
sketch6.addConstraint(Sketcher.Constraint("Vertical", 24))
sketch6.addConstraint(Sketcher.Constraint("Horizontal", 25))
sketch6.addConstraint(Sketcher.Constraint("Vertical", 26))
sketch6.addConstraint(Sketcher.Constraint("Horizontal", 27))
sketch6.addConstraint(Sketcher.Constraint("Vertical", 28))
sketch6.addConstraint(Sketcher.Constraint("Horizontal", 29))
sketch6.addConstraint(Sketcher.Constraint("Vertical", 30))
sketch6.addConstraint(Sketcher.Constraint("Horizontal", 31))
sketch6.addConstraint(Sketcher.Constraint("Vertical", 32))
sketch6.addConstraint(Sketcher.Constraint("Horizontal", 33))
sketch6.addConstraint(Sketcher.Constraint("Vertical", 34))
sketch6.addConstraint(Sketcher.Constraint("Horizontal", 35))
sketch6.addConstraint(Sketcher.Constraint("Vertical", 36))
sketch6.addConstraint(Sketcher.Constraint("Horizontal", 37))
sketch6.addConstraint(Sketcher.Constraint("Vertical", 38))
sketch6.addConstraint(Sketcher.Constraint("Horizontal", 39))
sketch6.addConstraint(Sketcher.Constraint("Vertical", 40))
sketch6.addConstraint(Sketcher.Constraint("Horizontal", 41))
sketch6.addConstraint(Sketcher.Constraint("Vertical", 42))
sketch6.addConstraint(Sketcher.Constraint("Horizontal", 43))
sketch6.addConstraint(Sketcher.Constraint("Vertical", 44))
sketch6.addConstraint(Sketcher.Constraint("Horizontal", 45))
sketch6.addConstraint(Sketcher.Constraint("Vertical", 46))
sketch6.addConstraint(Sketcher.Constraint("Horizontal", 47))
sketch6.addConstraint(Sketcher.Constraint("Vertical", 48))
sketch6.addConstraint(Sketcher.Constraint("Horizontal", 49))
sketch6.addConstraint(Sketcher.Constraint("Vertical", 50))
sketch6.addConstraint(Sketcher.Constraint("Horizontal", 51))
sketch6.addConstraint(Sketcher.Constraint("Vertical", 52))
sketch6.addConstraint(Sketcher.Constraint("Horizontal", 53))
sketch6.addConstraint(Sketcher.Constraint("Vertical", 54))
sketch6.addConstraint(Sketcher.Constraint("Horizontal", 55))
sketch6.addConstraint(Sketcher.Constraint("Vertical", 56))
sketch6.addConstraint(Sketcher.Constraint("Horizontal", 57))
sketch6.addConstraint(Sketcher.Constraint("Vertical", 58))
sketch6.addConstraint(Sketcher.Constraint("Horizontal", 59))
sketch6.addConstraint(Sketcher.Constraint("Vertical", 60))
sketch6.addConstraint(Sketcher.Constraint("Horizontal", 61))
sketch6.addConstraint(Sketcher.Constraint("Vertical", 62))
sketch6.addConstraint(Sketcher.Constraint("Horizontal", 63))
sketch6.addConstraint(Sketcher.Constraint("Vertical", 64))
sketch6.addConstraint(Sketcher.Constraint("Horizontal", 65))
sketch6.addConstraint(Sketcher.Constraint("Vertical", 66))
sketch6.addConstraint(Sketcher.Constraint("Horizontal", 67))
sketch6.addConstraint(Sketcher.Constraint("Vertical", 68))
sketch6.addConstraint(Sketcher.Constraint("Horizontal", 69))
sketch6.addConstraint(Sketcher.Constraint("Vertical", 70))
sketch6.addConstraint(Sketcher.Constraint("Horizontal", 71))
sketch6.addConstraint(Sketcher.Constraint("Vertical", 72))
sketch6.addConstraint(Sketcher.Constraint("Horizontal", 73))
sketch6.addConstraint(Sketcher.Constraint("Vertical", 74))
sketch6.addConstraint(Sketcher.Constraint("Horizontal", 75))
sketch6.addConstraint(Sketcher.Constraint("Vertical", 76))
sketch6.addConstraint(Sketcher.Constraint("Horizontal", 77))
sketch6.addConstraint(Sketcher.Constraint("Vertical", 78))
sketch6.addConstraint(Sketcher.Constraint("Horizontal", 79))
sketch6.addConstraint(Sketcher.Constraint("Vertical", 80))
sketch6.addConstraint(Sketcher.Constraint("Horizontal", 81))
sketch6.addConstraint(Sketcher.Constraint("Vertical", 82))
sketch6.addConstraint(Sketcher.Constraint("Horizontal", 83))
sketch6.addConstraint(Sketcher.Constraint("Vertical", 3, 2, 4, 2))
sketch6.addConstraint(Sketcher.Constraint("Vertical", 2, 2, 5, 2))
sketch6.addConstraint(Sketcher.Constraint("Vertical", 7, 2, 8, 2))
sketch6.addConstraint(Sketcher.Constraint("Vertical", 6, 2, 9, 2))
sketch6.addConstraint(Sketcher.Constraint("Vertical", 11, 2, 12, 2))
sketch6.addConstraint(Sketcher.Constraint("Vertical", 10, 2, 13, 2))
sketch6.addConstraint(Sketcher.Constraint("Vertical", 15, 2, 16, 2))
sketch6.addConstraint(Sketcher.Constraint("Vertical", 14, 2, 17, 2))
sketch6.addConstraint(Sketcher.Constraint("Vertical", 19, 2, 20, 2))
sketch6.addConstraint(Sketcher.Constraint("Vertical", 18, 2, 21, 2))
sketch6.addConstraint(Sketcher.Constraint("Vertical", 23, 2, 24, 2))
sketch6.addConstraint(Sketcher.Constraint("Vertical", 22, 2, 25, 2))
sketch6.addConstraint(Sketcher.Constraint("Vertical", 31, 2, 32, 2))
sketch6.addConstraint(Sketcher.Constraint("Vertical", 30, 2, 33, 2))
sketch6.addConstraint(Sketcher.Constraint("Vertical", 35, 2, 36, 2))
sketch6.addConstraint(Sketcher.Constraint("Vertical", 34, 2, 37, 2))
sketch6.addConstraint(Sketcher.Constraint("Vertical", 39, 2, 40, 2))
sketch6.addConstraint(Sketcher.Constraint("Vertical", 38, 2, 41, 2))
sketch6.addConstraint(Sketcher.Constraint("Vertical", 43, 2, 44, 2))
sketch6.addConstraint(Sketcher.Constraint("Vertical", 42, 2, 45, 2))
sketch6.addConstraint(Sketcher.Constraint("Vertical", 47, 2, 48, 2))
sketch6.addConstraint(Sketcher.Constraint("Vertical", 46, 2, 49, 2))
sketch6.addConstraint(Sketcher.Constraint("Vertical", 51, 2, 52, 2))
sketch6.addConstraint(Sketcher.Constraint("Vertical", 50, 2, 53, 2))
sketch6.addConstraint(Sketcher.Constraint("Vertical", 59, 2, 60, 2))
sketch6.addConstraint(Sketcher.Constraint("Vertical", 58, 2, 61, 2))
sketch6.addConstraint(Sketcher.Constraint("Vertical", 63, 2, 64, 2))
sketch6.addConstraint(Sketcher.Constraint("Vertical", 62, 2, 65, 2))
sketch6.addConstraint(Sketcher.Constraint("Vertical", 67, 2, 68, 2))
sketch6.addConstraint(Sketcher.Constraint("Vertical", 66, 2, 69, 2))
sketch6.addConstraint(Sketcher.Constraint("Vertical", 71, 2, 72, 2))
sketch6.addConstraint(Sketcher.Constraint("Vertical", 70, 2, 73, 2))
sketch6.addConstraint(Sketcher.Constraint("Vertical", 75, 2, 76, 2))
sketch6.addConstraint(Sketcher.Constraint("Vertical", 74, 2, 77, 2))
sketch6.addConstraint(Sketcher.Constraint("Vertical", 79, 2, 80, 2))
sketch6.addConstraint(Sketcher.Constraint("Vertical", 78, 2, 81, 2))
sketch6.addConstraint(Sketcher.Constraint("Equal", 27, 29))
sketch6.addConstraint(Sketcher.Constraint("Equal", 55, 57))
sketch6.addConstraint(Sketcher.Constraint("Equal", 2, 4))
sketch6.addConstraint(Sketcher.Constraint("Equal", 6, 8))
sketch6.addConstraint(Sketcher.Constraint("Equal", 10, 12))
sketch6.addConstraint(Sketcher.Constraint("Equal", 14, 16))
sketch6.addConstraint(Sketcher.Constraint("Equal", 18, 20))
sketch6.addConstraint(Sketcher.Constraint("Equal", 22, 24))
sketch6.addConstraint(Sketcher.Constraint("Equal", 26, 28))
sketch6.addConstraint(Sketcher.Constraint("Equal", 30, 32))
sketch6.addConstraint(Sketcher.Constraint("Equal", 34, 36))
sketch6.addConstraint(Sketcher.Constraint("Equal", 38, 40))
sketch6.addConstraint(Sketcher.Constraint("Equal", 42, 44))
sketch6.addConstraint(Sketcher.Constraint("Equal", 46, 48))
sketch6.addConstraint(Sketcher.Constraint("Equal", 50, 52))
sketch6.addConstraint(Sketcher.Constraint("Equal", 54, 56))
sketch6.addConstraint(Sketcher.Constraint("Equal", 58, 60))
sketch6.addConstraint(Sketcher.Constraint("Equal", 62, 64))
sketch6.addConstraint(Sketcher.Constraint("Equal", 66, 68))
sketch6.addConstraint(Sketcher.Constraint("Equal", 70, 72))
sketch6.addConstraint(Sketcher.Constraint("Equal", 74, 76))
sketch6.addConstraint(Sketcher.Constraint("Equal", 78, 80))
sketch6.addConstraint(Sketcher.Constraint("DistanceX", 1, 1, 1, 2, 50.0))
sketch6.addConstraint(Sketcher.Constraint("DistanceY", 0, 2, 0, 1, 100.0))
sketch6.addConstraint(Sketcher.Constraint("DistanceX", 0, 2, -1, 1, 3500.0))
sketch6.addConstraint(Sketcher.Constraint("DistanceX", 56, 2, -1, 1, 51.995981))
sketch6.addConstraint(Sketcher.Constraint("DistanceY", -1, 1, 0, 2, 1455.244577))
sketch6.addConstraint(Sketcher.Constraint("DistanceY", -1, 1, 4, 2, 1255.244577))
sketch6.addConstraint(Sketcher.Constraint("DistanceY", -1, 1, 8, 2, 1055.244577))
sketch6.addConstraint(Sketcher.Constraint("DistanceY", -1, 1, 12, 2, 855.244577))
sketch6.addConstraint(Sketcher.Constraint("DistanceY", -1, 1, 16, 2, 655.244577))
sketch6.addConstraint(Sketcher.Constraint("DistanceY", -1, 1, 20, 2, 455.244577))
sketch6.addConstraint(Sketcher.Constraint("DistanceY", -1, 1, 24, 2, 255.244577))
sketch6.addConstraint(Sketcher.Constraint("DistanceX", 28, 2, -1, 1, 1778.748274))
sketch6.addConstraint(Sketcher.Constraint("DistanceY", -1, 1, 28, 2, 1448.919457))
sketch6.addConstraint(Sketcher.Constraint("DistanceY", -1, 1, 32, 2, 1248.919457))
sketch6.addConstraint(Sketcher.Constraint("DistanceY", -1, 1, 36, 2, 1048.919457))
sketch6.addConstraint(Sketcher.Constraint("DistanceY", -1, 1, 40, 2, 848.919457))
sketch6.addConstraint(Sketcher.Constraint("DistanceY", -1, 1, 44, 2, 648.919457))
sketch6.addConstraint(Sketcher.Constraint("DistanceY", -1, 1, 48, 2, 448.919457))
sketch6.addConstraint(Sketcher.Constraint("DistanceY", -1, 1, 52, 2, 248.919457))
sketch6.addConstraint(Sketcher.Constraint("DistanceY", -1, 1, 56, 2, 1450.499964))
sketch6.addConstraint(Sketcher.Constraint("DistanceY", -1, 1, 60, 2, 1250.499964))
sketch6.addConstraint(Sketcher.Constraint("DistanceY", -1, 1, 64, 2, 1050.499964))
sketch6.addConstraint(Sketcher.Constraint("DistanceY", -1, 1, 68, 2, 850.499964))
sketch6.addConstraint(Sketcher.Constraint("DistanceY", -1, 1, 72, 2, 650.499964))
sketch6.addConstraint(Sketcher.Constraint("DistanceY", -1, 1, 76, 2, 450.499964))
sketch6.addConstraint(Sketcher.Constraint("DistanceY", -1, 1, 80, 2, 250.499964))
pad6 = doc.addObject("PartDesign::Pad", "Pad005")
body.addObject(pad6)
pad6.Profile = sketch6
pad6.Length = 10

sketch7 = doc.addObject("Sketcher::SketchObject", "Sketch006")
body.addObject(sketch7)
sketch7.AttachmentSupport = (doc.XY_Plane, [""])
sketch7.MapMode = "FlatFace"
add_polygon(sketch7, [(-3442, -800), (-3442, -900), (-3508, -900), (-3508, -800)])
add_polygon(sketch7, [(-3442, 0), (-3442, -100), (-3508, -100), (-3508, 0)])
add_polygon(sketch7, [(-1718, -800), (-1718, -900), (-1782, -900), (-1782, -800)])
add_polygon(sketch7, [(-1718, 0), (-1718, -100), (-1782, -100), (-1782, 0)])
add_polygon(sketch7, [(8, -800), (8, -900), (-58, -900), (-58, -800)])
add_polygon(sketch7, [(8, 0), (8, -100), (-58, -100), (-58, 0)])
sketch7.addConstraint(Sketcher.Constraint("Vertical", 0))
sketch7.addConstraint(Sketcher.Constraint("Horizontal", 1))
sketch7.addConstraint(Sketcher.Constraint("Vertical", 2))
sketch7.addConstraint(Sketcher.Constraint("Horizontal", 3))
sketch7.addConstraint(Sketcher.Constraint("Vertical", 4))
sketch7.addConstraint(Sketcher.Constraint("Horizontal", 5))
sketch7.addConstraint(Sketcher.Constraint("Vertical", 6))
sketch7.addConstraint(Sketcher.Constraint("Horizontal", 7))
sketch7.addConstraint(Sketcher.Constraint("Vertical", 8))
sketch7.addConstraint(Sketcher.Constraint("Horizontal", 9))
sketch7.addConstraint(Sketcher.Constraint("Vertical", 10))
sketch7.addConstraint(Sketcher.Constraint("Horizontal", 11))
sketch7.addConstraint(Sketcher.Constraint("Vertical", 12))
sketch7.addConstraint(Sketcher.Constraint("Horizontal", 13))
sketch7.addConstraint(Sketcher.Constraint("Vertical", 14))
sketch7.addConstraint(Sketcher.Constraint("Horizontal", 15))
sketch7.addConstraint(Sketcher.Constraint("Vertical", 16))
sketch7.addConstraint(Sketcher.Constraint("Horizontal", 17))
sketch7.addConstraint(Sketcher.Constraint("Vertical", 18))
sketch7.addConstraint(Sketcher.Constraint("Horizontal", 19))
sketch7.addConstraint(Sketcher.Constraint("Vertical", 20))
sketch7.addConstraint(Sketcher.Constraint("Horizontal", 21))
sketch7.addConstraint(Sketcher.Constraint("Vertical", 22))
sketch7.addConstraint(Sketcher.Constraint("Horizontal", 23))
sketch7.addConstraint(Sketcher.Constraint("PointOnObject", 6, 2, -1))
sketch7.addConstraint(Sketcher.Constraint("PointOnObject", 14, 2, -1))
sketch7.addConstraint(Sketcher.Constraint("PointOnObject", 22, 2, -1))
sketch7.addConstraint(Sketcher.Constraint("Horizontal", 1, 2, 8, 2))
sketch7.addConstraint(Sketcher.Constraint("Horizontal", 3, 2, 10, 2))
sketch7.addConstraint(Sketcher.Constraint("Horizontal", 5, 2, 12, 2))
sketch7.addConstraint(Sketcher.Constraint("Horizontal", 9, 2, 16, 2))
sketch7.addConstraint(Sketcher.Constraint("Horizontal", 11, 2, 18, 2))
sketch7.addConstraint(Sketcher.Constraint("Horizontal", 13, 2, 20, 2))
sketch7.addConstraint(Sketcher.Constraint("Vertical", 3, 2, 4, 2))
sketch7.addConstraint(Sketcher.Constraint("Vertical", 2, 2, 5, 2))
sketch7.addConstraint(Sketcher.Constraint("Vertical", 11, 2, 12, 2))
sketch7.addConstraint(Sketcher.Constraint("Vertical", 10, 2, 13, 2))
sketch7.addConstraint(Sketcher.Constraint("Vertical", 19, 2, 20, 2))
sketch7.addConstraint(Sketcher.Constraint("Vertical", 18, 2, 21, 2))
sketch7.addConstraint(Sketcher.Constraint("Equal", 7, 9))
sketch7.addConstraint(Sketcher.Constraint("Equal", 15, 17))
sketch7.addConstraint(Sketcher.Constraint("Equal", 2, 4))
sketch7.addConstraint(Sketcher.Constraint("DistanceX", 1, 2, 1, 1, 65.0))
sketch7.addConstraint(Sketcher.Constraint("DistanceY", 0, 2, 0, 1, 100.0))
sketch7.addConstraint(Sketcher.Constraint("DistanceY", 0, 2, -1, 1, 900.0))
sketch7.addConstraint(Sketcher.Constraint("DistanceX", 0, 2, 8, 2, 1725.0))
sketch7.addConstraint(Sketcher.Constraint("DistanceX", 8, 2, 16, 2, 1725.0))
sketch7.addConstraint(Sketcher.Constraint("DistanceX", 0, 2, -1, 1, 3442.5))
pad7 = doc.addObject("PartDesign::Pad", "Pad006")
body.addObject(pad7)
pad7.Profile = sketch7
pad7.Length = 25
pad7.Reversed = True

doc.recompute()
